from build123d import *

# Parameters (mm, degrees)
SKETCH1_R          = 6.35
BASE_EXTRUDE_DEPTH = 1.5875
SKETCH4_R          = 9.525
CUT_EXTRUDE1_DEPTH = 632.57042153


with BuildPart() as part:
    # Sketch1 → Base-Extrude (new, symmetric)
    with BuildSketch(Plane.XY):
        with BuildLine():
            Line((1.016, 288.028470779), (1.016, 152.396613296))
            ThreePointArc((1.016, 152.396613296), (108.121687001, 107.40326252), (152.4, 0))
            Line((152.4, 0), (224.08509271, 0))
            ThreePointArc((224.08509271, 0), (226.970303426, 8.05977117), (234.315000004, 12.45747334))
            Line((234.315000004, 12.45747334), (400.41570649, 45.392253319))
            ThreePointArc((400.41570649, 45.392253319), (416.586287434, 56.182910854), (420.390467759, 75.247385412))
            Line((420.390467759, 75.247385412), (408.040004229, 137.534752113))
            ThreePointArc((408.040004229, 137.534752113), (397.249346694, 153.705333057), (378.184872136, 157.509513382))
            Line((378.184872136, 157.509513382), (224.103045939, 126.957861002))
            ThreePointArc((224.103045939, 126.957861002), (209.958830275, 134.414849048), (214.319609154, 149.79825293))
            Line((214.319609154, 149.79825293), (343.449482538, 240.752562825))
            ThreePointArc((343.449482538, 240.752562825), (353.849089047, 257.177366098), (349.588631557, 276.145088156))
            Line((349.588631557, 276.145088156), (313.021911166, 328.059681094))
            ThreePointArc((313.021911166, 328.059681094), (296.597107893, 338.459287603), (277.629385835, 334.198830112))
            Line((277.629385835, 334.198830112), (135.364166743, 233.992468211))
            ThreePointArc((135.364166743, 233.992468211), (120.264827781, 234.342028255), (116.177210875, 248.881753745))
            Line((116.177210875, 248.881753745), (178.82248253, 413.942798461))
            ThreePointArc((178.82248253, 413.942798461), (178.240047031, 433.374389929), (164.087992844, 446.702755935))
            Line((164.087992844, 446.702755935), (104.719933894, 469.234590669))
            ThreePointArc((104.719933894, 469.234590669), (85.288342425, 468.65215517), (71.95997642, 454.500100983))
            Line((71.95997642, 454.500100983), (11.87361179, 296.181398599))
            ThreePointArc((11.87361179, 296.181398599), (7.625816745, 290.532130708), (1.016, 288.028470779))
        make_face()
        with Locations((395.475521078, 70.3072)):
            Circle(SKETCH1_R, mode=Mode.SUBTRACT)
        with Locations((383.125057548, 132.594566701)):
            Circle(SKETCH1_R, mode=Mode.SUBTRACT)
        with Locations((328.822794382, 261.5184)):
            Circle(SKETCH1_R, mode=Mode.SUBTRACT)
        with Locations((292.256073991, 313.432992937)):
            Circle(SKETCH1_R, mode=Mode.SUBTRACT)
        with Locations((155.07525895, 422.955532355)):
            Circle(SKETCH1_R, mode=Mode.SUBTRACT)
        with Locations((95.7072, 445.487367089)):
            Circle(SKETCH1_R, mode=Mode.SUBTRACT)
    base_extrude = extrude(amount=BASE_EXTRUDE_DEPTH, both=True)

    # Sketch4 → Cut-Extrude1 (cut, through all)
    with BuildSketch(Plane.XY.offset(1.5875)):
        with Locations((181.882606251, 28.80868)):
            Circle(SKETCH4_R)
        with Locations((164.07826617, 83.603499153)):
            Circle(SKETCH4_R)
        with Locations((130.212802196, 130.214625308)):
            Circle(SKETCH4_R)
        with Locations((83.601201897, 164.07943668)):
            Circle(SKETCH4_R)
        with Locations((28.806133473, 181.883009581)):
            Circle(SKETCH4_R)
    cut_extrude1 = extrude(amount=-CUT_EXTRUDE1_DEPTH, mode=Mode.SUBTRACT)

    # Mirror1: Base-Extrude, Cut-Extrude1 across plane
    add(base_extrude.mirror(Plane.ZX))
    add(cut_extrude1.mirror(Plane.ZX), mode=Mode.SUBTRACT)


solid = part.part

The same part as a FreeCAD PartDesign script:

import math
import FreeCAD as App
import Part
import Sketcher
Q = App.Units.Quantity

doc = App.newDocument("Part")
body = doc.addObject("PartDesign::Body", "Body")

sketch1 = body.newObject("Sketcher::SketchObject", "Sketch")
sketch1.AttachmentSupport = (doc.getObject("XY_Plane"), [""])
sketch1.MapMode = "FlatFace"
sketch1.addGeometry([
    Part.LineSegment(App.Vector(1.016, 288.028471, 0), App.Vector(1.016, 152.396613, 0)),
    Part.ArcOfCircle(Part.Circle(App.Vector(0, 0, 0), App.Vector(0, 0, 1), 152.4), math.radians(0), math.radians(89.618025)),
    Part.LineSegment(App.Vector(152.4, 0, 0), App.Vector(224.085093, 0, 0)),
    Part.ArcOfCircle(Part.Circle(App.Vector(236.785093, 0, 0), App.Vector(0, 0, 1), 12.7), math.radians(101.215253), math.radians(180)),
    Part.LineSegment(App.Vector(234.315, 12.457473, 0), App.Vector(400.415706, 45.392253, 0)),
    Part.ArcOfCircle(Part.Circle(App.Vector(395.475521, 70.3072, 0), App.Vector(0, 0, 1), 25.4), math.radians(-78.784747), math.radians(11.215253)),
    Part.LineSegment(App.Vector(420.390468, 75.247385, 0), App.Vector(408.040004, 137.534752, 0)),
    Part.ArcOfCircle(Part.Circle(App.Vector(383.125058, 132.594567, 0), App.Vector(0, 0, 1), 25.4), math.radians(11.215253), math.radians(101.215253)),
    Part.LineSegment(App.Vector(378.184872, 157.509513, 0), App.Vector(224.103046, 126.957861, 0)),
    Part.ArcOfCircle(Part.Circle(App.Vector(221.632953, 139.415334, 0), App.Vector(0, 0, 1), 12.7), math.radians(125.159451), math.radians(281.215253)),
    Part.LineSegment(App.Vector(214.319609, 149.798253, 0), App.Vector(343.449483, 240.752563, 0)),
    Part.ArcOfCircle(Part.Circle(App.Vector(328.822794, 261.5184, 0), App.Vector(0, 0, 1), 25.4), math.radians(-54.840549), math.radians(35.159451)),
    Part.LineSegment(App.Vector(349.588632, 276.145088, 0), App.Vector(313.021911, 328.059681, 0)),
    Part.ArcOfCircle(Part.Circle(App.Vector(292.256074, 313.432993, 0), App.Vector(0, 0, 1), 25.4), math.radians(35.159451), math.radians(125.159451)),
    Part.LineSegment(App.Vector(277.629386, 334.19883, 0), App.Vector(135.364167, 233.992468, 0)),
    Part.ArcOfCircle(Part.Circle(App.Vector(128.050823, 244.375387, 0), App.Vector(0, 0, 1), 12.7), math.radians(159.216849), math.radians(305.159451)),
    Part.LineSegment(App.Vector(116.177211, 248.881754, 0), App.Vector(178.822483, 413.942798, 0)),
    Part.ArcOfCircle(Part.Circle(App.Vector(155.075259, 422.955532, 0), App.Vector(0, 0, 1), 25.4), math.radians(-20.783151), math.radians(69.216849)),
    Part.LineSegment(App.Vector(164.087993, 446.702756, 0), App.Vector(104.719934, 469.234591, 0)),
    Part.ArcOfCircle(Part.Circle(App.Vector(95.7072, 445.487367, 0), App.Vector(0, 0, 1), 25.4), math.radians(69.216849), math.radians(159.216849)),
    Part.LineSegment(App.Vector(71.959976, 454.500101, 0), App.Vector(11.873612, 296.181399, 0)),
    Part.ArcOfCircle(Part.Circle(App.Vector(0, 300.687766, 0), App.Vector(0, 0, 1), 12.7), math.radians(-85.411434), math.radians(-20.783151)),
    Part.Circle(App.Vector(395.475521, 70.3072, 0), App.Vector(0, 0, 1), 6.35),
    Part.Circle(App.Vector(383.125058, 132.594567, 0), App.Vector(0, 0, 1), 6.35),
    Part.Circle(App.Vector(95.7072, 445.487367, 0), App.Vector(0, 0, 1), 6.35),
    Part.Circle(App.Vector(155.075259, 422.955532, 0), App.Vector(0, 0, 1), 6.35),
    Part.Circle(App.Vector(292.256074, 313.432993, 0), App.Vector(0, 0, 1), 6.35),
    Part.Circle(App.Vector(328.822794, 261.5184, 0), App.Vector(0, 0, 1), 6.35),
], False)
sketch1.addConstraint([
    Sketcher.Constraint("Coincident", 0, 2, 1, 2),
    Sketcher.Constraint("Coincident", 1, 1, 2, 1),
    Sketcher.Constraint("Coincident", 2, 2, 3, 2),
    Sketcher.Constraint("Tangent", 3, 1, 4, 1),
    Sketcher.Constraint("Tangent", 4, 2, 5, 1),
    Sketcher.Constraint("Tangent", 5, 2, 6, 1),
    Sketcher.Constraint("Tangent", 6, 2, 7, 1),
    Sketcher.Constraint("Tangent", 7, 2, 8, 1),
    Sketcher.Constraint("Tangent", 8, 2, 9, 2),
    Sketcher.Constraint("Tangent", 9, 1, 10, 1),
    Sketcher.Constraint("Tangent", 10, 2, 11, 1),
    Sketcher.Constraint("Tangent", 11, 2, 12, 1),
    Sketcher.Constraint("Tangent", 12, 2, 13, 1),
    Sketcher.Constraint("Tangent", 13, 2, 14, 1),
    Sketcher.Constraint("Tangent", 14, 2, 15, 2),
    Sketcher.Constraint("Tangent", 15, 1, 16, 1),
    Sketcher.Constraint("Tangent", 16, 2, 17, 1),
    Sketcher.Constraint("Tangent", 17, 2, 18, 1),
    Sketcher.Constraint("Tangent", 18, 2, 19, 1),
    Sketcher.Constraint("Tangent", 19, 2, 20, 1),
    Sketcher.Constraint("Tangent", 20, 2, 21, 2),
    Sketcher.Constraint("Coincident", 21, 1, 0, 1),
    Sketcher.Constraint("Vertical", 0),
    Sketcher.Constraint("Horizontal", 2),
    Sketcher.Constraint("Coincident", 1, 3, -1, 1),
    Sketcher.Constraint("Coincident", 22, 3, 5, 3),
    Sketcher.Constraint("Coincident", 23, 3, 7, 3),
    Sketcher.Constraint("Coincident", 24, 3, 19, 3),
    Sketcher.Constraint("Coincident", 25, 3, 17, 3),
    Sketcher.Constraint("Coincident", 26, 3, 13, 3),
    Sketcher.Constraint("Coincident", 27, 3, 11, 3),
    Sketcher.Constraint("Equal", 5, 7),
    Sketcher.Constraint("Equal", 3, 9),
    Sketcher.Constraint("Equal", 7, 11),
    Sketcher.Constraint("Equal", 11, 13),
    Sketcher.Constraint("Equal", 9, 15),
    Sketcher.Constraint("Equal", 13, 17),
    Sketcher.Constraint("Equal", 17, 19),
    Sketcher.Constraint("Equal", 15, 21),
    Sketcher.Constraint("Equal", 22, 23),
    Sketcher.Constraint("Equal", 23, 24),
    Sketcher.Constraint("Equal", 24, 25),
    Sketcher.Constraint("Equal", 25, 26),
    Sketcher.Constraint("Equal", 26, 27),
    Sketcher.Constraint("PointOnObject", 3, 3, -1),
    Sketcher.Constraint("PointOnObject", 21, 3, -2),
    Sketcher.Constraint("PointOnObject", 1, 1, -1),
    Sketcher.Constraint("Perpendicular", 4, 6),
    Sketcher.Constraint("Perpendicular", 6, 8),
    Sketcher.Constraint("Perpendicular", 10, 12),
    Sketcher.Constraint("Perpendicular", 12, 14),
    Sketcher.Constraint("Perpendicular", 16, 18),
    Sketcher.Constraint("Perpendicular", 18, 20),
    Sketcher.Constraint("Equal", 6, 12),
    Sketcher.Constraint("Equal", 12, 18),
    Sketcher.Constraint("Radius", 1, Q("6 in")),
    Sketcher.Constraint("Radius", 5, Q("1 in")),
    Sketcher.Constraint("Diameter", 22, Q("0.5 in")),
    Sketcher.Constraint("Radius", 3, Q("0.5 in")),
    Sketcher.Constraint("Distance", 6, Q("2.5 in")),
    Sketcher.Constraint("DistanceX", -1, 1, 0, 2, Q("0.04 in")),
    Sketcher.Constraint("DistanceY", -1, 1, 5, 3, Q("2.768 in")),
    Sketcher.Constraint("DistanceY", -1, 1, 11, 3, Q("10.296 in")),
    Sketcher.Constraint("DistanceX", -1, 1, 19, 3, Q("3.768 in")),
    Sketcher.Constraint("DistanceX", -1, 1, 3, 1, Q("9.225 in")),
    Sketcher.Constraint("DistanceY", 9, 3, 17, 3, Q("11.1629999 in")),
    Sketcher.Constraint("DistanceY", -1, 1, 16, 2, 413.942798),
    Sketcher.Constraint("DistanceY", -1, 1, 19, 2, 454.500101),
    Sketcher.Constraint("DistanceX", 3, 3, 11, 3, 92.037702),
    Sketcher.Constraint("DistanceX", 17, 3, 7, 3, 228.049799),
])
pad1 = body.newObject("PartDesign::Pad", "Pad")
pad1.Profile = sketch1
pad1.Length = Q("0.125 in")
pad1.Midplane = True

sketch2 = body.newObject("Sketcher::SketchObject", "Sketch001")
sketch2.AttachmentSupport = (doc.getObject("XY_Plane"), [""])
sketch2.MapMode = "FlatFace"
sketch2.AttachmentOffset = App.Placement(App.Vector(0, 0, 0.0625 * 25.4), App.Rotation())
sketch2.addGeometry([
    Part.Circle(App.Vector(181.882606, 28.80868, 0), App.Vector(0, 0, 1), 9.525),
    Part.Circle(App.Vector(164.078266, 83.603499, 0), App.Vector(0, 0, 1), 9.525),
    Part.Circle(App.Vector(130.212802, 130.214625, 0), App.Vector(0, 0, 1), 9.525),
    Part.Circle(App.Vector(83.601202, 164.079437, 0), App.Vector(0, 0, 1), 9.525),
    Part.Circle(App.Vector(28.806133, 181.88301, 0), App.Vector(0, 0, 1), 9.525),
], False)
sketch2.addConstraint([
    Sketcher.Constraint("Equal", 0, 1),
    Sketcher.Constraint("Equal", 1, 2),
    Sketcher.Constraint("Equal", 2, 3),
    Sketcher.Constraint("Equal", 3, 4),
    Sketcher.Constraint("Diameter", 0, Q("0.75 in")),
    Sketcher.Constraint("DistanceY", -1, 1, 0, 3, Q("1.1342 in")),
    Sketcher.Constraint("DistanceY", -1, 1, 1, 3, 83.603499),
    Sketcher.Constraint("DistanceX", -1, 1, 3, 3, 83.601202),
    Sketcher.Constraint("DistanceX", 3, 3, 2, 3, 46.6116),
    Sketcher.Constraint("DistanceY", -1, 1, 4, 3, 181.88301),
    Sketcher.Constraint("DistanceX", 1, 3, 0, 3, 17.80434),
    Sketcher.Constraint("DistanceY", 2, 3, 3, 3, 33.864811),
    Sketcher.Constraint("DistanceX", 4, 3, 3, 3, 54.795068),
    Sketcher.Constraint("DistanceX", -1, 1, 0, 3, 181.882606),
    Sketcher.Constraint("DistanceY", -1, 1, 2, 3, 130.214625),
])
pocket1 = body.newObject("PartDesign::Pocket", "Pocket")
pocket1.Profile = sketch2
pocket1.Type = "ThroughAll"
doc.recompute()

mirrored = body.newObject("PartDesign::Mirrored", "Mirrored")
mirrored.Originals = [pad1, pocket1]
mirrored.MirrorPlane = (doc.getObject("XZ_Plane"), [""])
body.Tip = mirrored

doc.recompute()
